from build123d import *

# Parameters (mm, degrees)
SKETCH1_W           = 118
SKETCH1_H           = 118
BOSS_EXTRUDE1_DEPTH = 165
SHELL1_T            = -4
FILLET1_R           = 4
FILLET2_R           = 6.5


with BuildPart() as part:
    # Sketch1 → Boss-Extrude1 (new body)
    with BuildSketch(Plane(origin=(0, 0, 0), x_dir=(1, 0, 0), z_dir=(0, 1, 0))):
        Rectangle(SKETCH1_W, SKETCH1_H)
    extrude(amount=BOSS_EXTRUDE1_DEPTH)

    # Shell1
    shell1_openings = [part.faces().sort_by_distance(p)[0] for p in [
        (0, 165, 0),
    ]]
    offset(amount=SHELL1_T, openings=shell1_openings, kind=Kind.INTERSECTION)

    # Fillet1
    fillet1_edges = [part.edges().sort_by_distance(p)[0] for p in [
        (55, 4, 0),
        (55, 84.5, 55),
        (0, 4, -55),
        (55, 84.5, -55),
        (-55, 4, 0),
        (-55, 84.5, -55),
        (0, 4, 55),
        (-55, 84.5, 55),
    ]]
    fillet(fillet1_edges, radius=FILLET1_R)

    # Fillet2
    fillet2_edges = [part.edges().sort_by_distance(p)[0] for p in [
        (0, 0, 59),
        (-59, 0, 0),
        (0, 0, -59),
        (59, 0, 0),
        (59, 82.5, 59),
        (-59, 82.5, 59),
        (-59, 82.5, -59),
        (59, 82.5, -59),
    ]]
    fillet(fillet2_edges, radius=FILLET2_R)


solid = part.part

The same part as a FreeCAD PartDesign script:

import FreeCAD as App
import Part
import Sketcher

V = App.Vector
Q = App.Units.Quantity


def edges_at(feature, points):
    """Names of the edges that pass closest to the given points."""
    edges = feature.Shape.Edges
    near = lambda p: min(range(len(edges)), key=lambda i: edges[i].distToShape(Part.Vertex(*p))[0])
    return sorted({f"Edge{near(p) + 1}" for p in points})


def faces_at(feature, points):
    """Names of the faces that lie closest to the given points."""
    faces = feature.Shape.Faces
    near = lambda p: min(range(len(faces)), key=lambda i: faces[i].distToShape(Part.Vertex(*p))[0])
    return sorted({f"Face{near(p) + 1}" for p in points})


def add_polygon(sketch, points):
    """Adds a closed chain of lines whose ends are joined by coincident constraints."""
    first, n = sketch.GeometryCount, len(points)
    for a, b in zip(points, points[1:] + points[:1]):
        sketch.addGeometry(Part.LineSegment(App.Vector(*a, 0), App.Vector(*b, 0)), False)
    for i in range(n):
        sketch.addConstraint(Sketcher.Constraint("Coincident", first + i, 2, first + (i + 1) % n, 1))

doc = App.newDocument("Part")
body = doc.addObject("PartDesign::Body", "Body")

sketch1 = body.newObject("Sketcher::SketchObject", "Sketch")
sketch1.AttachmentSupport = (doc.getObject("XZ_Plane"), [""])
sketch1.MapMode = "FlatFace"
add_polygon(sketch1, [(-59, -59), (-59, 59), (59, 59), (59, -59)])
sketch1.addConstraint([
    Sketcher.Constraint("Vertical", 0),
    Sketcher.Constraint("Horizontal", 1),
    Sketcher.Constraint("Vertical", 2),
    Sketcher.Constraint("Horizontal", 3),
    Sketcher.Constraint("Symmetric", 0, 2, 2, 2, -1, 1),
    Sketcher.Constraint("Equal", 3, 0),
    Sketcher.Constraint("DistanceX", 1, 1, 1, 2, Q("118 mm")),
])
pad1 = body.newObject("PartDesign::Pad", "Pad")
pad1.Profile = sketch1
pad1.Length = 165
pad1.Reversed = True
doc.recompute()

thickness = body.newObject("PartDesign::Thickness", "Thickness")
thickness.Base = (pad1, faces_at(pad1, [(0, 165, 0)]))
thickness.Value = 4
thickness.Reversed = True
thickness.Join = "Intersection"
doc.recompute()

fillet = body.newObject("PartDesign::Fillet", "Fillet")
fillet.Base = (thickness, edges_at(thickness, [
    (55, 4, 0),
    (55, 84.5, 55),
    (0, 4, -55),
    (55, 84.5, -55),
    (-55, 4, 0),
    (-55, 84.5, -55),
    (0, 4, 55),
    (-55, 84.5, 55),
]))
fillet.Radius = 4
doc.recompute()

fillet2 = body.newObject("PartDesign::Fillet", "Fillet001")
fillet2.Base = (fillet, edges_at(fillet, [
    (0, 0, 59),
    (-59, 0, 0),
    (0, 0, -59),
    (59, 0, 0),
    (59, 82.5, 59),
    (-59, 82.5, 59),
    (-59, 82.5, -59),
    (59, 82.5, -59),
]))
fillet2.Radius = 6.5

doc.recompute()
